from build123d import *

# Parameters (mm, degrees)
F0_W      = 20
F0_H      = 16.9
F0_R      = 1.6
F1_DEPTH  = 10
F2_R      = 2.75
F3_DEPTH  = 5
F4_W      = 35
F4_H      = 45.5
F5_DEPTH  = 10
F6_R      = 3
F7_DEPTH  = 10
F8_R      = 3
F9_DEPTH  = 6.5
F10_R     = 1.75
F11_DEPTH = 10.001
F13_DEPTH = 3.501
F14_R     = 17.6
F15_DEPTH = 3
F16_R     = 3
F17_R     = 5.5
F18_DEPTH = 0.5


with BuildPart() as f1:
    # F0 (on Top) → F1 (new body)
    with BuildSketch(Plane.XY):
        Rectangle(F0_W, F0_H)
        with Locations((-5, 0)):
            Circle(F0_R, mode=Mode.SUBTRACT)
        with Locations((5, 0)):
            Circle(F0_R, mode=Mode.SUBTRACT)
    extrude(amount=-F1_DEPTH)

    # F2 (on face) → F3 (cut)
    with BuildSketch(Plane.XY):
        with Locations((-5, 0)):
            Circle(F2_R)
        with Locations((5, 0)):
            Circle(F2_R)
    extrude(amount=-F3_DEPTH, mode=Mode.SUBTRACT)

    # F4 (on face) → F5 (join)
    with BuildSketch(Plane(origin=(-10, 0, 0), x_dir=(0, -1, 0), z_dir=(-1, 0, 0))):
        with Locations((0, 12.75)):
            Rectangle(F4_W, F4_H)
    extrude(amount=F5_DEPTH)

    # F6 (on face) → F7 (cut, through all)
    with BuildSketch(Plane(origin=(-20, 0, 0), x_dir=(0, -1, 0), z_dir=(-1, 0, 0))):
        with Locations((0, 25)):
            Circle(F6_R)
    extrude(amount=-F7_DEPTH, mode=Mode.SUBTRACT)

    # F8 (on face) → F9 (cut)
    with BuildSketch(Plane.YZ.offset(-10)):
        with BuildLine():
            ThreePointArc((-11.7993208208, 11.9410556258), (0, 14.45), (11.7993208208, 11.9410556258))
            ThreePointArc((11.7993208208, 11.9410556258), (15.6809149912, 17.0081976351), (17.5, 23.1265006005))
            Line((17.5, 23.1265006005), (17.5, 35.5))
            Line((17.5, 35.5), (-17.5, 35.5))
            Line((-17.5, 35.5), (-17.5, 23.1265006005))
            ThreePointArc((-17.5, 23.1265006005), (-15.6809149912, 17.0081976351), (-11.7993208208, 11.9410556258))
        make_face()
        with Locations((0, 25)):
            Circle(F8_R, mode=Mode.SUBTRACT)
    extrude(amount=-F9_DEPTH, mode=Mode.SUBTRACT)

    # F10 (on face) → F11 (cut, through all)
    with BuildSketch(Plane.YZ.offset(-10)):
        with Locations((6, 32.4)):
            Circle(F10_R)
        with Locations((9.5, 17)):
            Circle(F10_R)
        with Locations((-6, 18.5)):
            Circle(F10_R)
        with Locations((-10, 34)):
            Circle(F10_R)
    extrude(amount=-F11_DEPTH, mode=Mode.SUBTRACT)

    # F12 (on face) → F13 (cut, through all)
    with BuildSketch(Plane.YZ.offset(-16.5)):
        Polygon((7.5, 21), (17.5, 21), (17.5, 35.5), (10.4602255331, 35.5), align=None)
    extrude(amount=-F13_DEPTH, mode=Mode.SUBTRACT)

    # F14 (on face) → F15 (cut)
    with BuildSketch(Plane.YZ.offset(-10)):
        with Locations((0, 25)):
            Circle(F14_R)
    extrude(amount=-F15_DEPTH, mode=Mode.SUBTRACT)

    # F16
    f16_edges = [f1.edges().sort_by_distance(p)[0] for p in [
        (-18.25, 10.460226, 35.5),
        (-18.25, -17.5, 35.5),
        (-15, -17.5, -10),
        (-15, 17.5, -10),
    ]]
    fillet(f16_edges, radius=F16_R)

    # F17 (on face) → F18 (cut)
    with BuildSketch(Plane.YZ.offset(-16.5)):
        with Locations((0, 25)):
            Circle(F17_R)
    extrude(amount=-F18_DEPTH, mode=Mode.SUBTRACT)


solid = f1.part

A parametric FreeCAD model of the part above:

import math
import FreeCAD as App
import Part
import Sketcher
from FreeCAD import Vector


def edges_at(feature, points):
    """Names of the edges that pass closest to the given points."""
    edges = feature.Shape.Edges
    near = lambda p: min(range(len(edges)), key=lambda i: edges[i].distToShape(Part.Vertex(*p))[0])
    return sorted({f"Edge{near(p) + 1}" for p in points})


def add_polygon(sketch, points):
    """Adds a closed chain of lines whose ends are joined by coincident constraints."""
    first, n = sketch.GeometryCount, len(points)
    for a, b in zip(points, points[1:] + points[:1]):
        sketch.addGeometry(Part.LineSegment(App.Vector(*a, 0), App.Vector(*b, 0)), False)
    for i in range(n):
        sketch.addConstraint(Sketcher.Constraint("Coincident", first + i, 2, first + (i + 1) % n, 1))

doc = App.newDocument("Part")
body = doc.addObject("PartDesign::Body", "Body")

# Sketch on XY plane
sketch1 = doc.addObject("Sketcher::SketchObject", "Sketch")
body.addObject(sketch1)
sketch1.AttachmentSupport = (doc.XY_Plane, [""])
sketch1.MapMode = "FlatFace"
add_polygon(sketch1, [(-10, 8.4), (-10, -8.4), (10, -8.4), (10, 8.4)])  # lines 0-3
sketch1.addGeometry(Part.Circle(Vector(-5, 0, 0), Vector(0, 0, 1), 1.6), False)  # 4
sketch1.addGeometry(Part.Circle(Vector(5, 0, 0), Vector(0, 0, 1), 1.6), False)  # 5
sketch1.addConstraint([
    Sketcher.Constraint("Vertical", 0),
    Sketcher.Constraint("Horizontal", 1),
    Sketcher.Constraint("Vertical", 2),
    Sketcher.Constraint("Horizontal", 3),
    Sketcher.Constraint("Equal", 4, 5),
    Sketcher.Constraint("Symmetric", 4, 3, 5, 3, -1, 1),
    Sketcher.Constraint("Symmetric", 0, 2, 2, 2, -1, 1),
    Sketcher.Constraint("PointOnObject", 4, 3, -1),
    Sketcher.Constraint("Diameter", 4, 3.2),
    Sketcher.Constraint("DistanceX", 1, 1, 1, 2, 20.0),
    Sketcher.Constraint("DistanceY", 0, 2, 0, 1, 16.9),
    Sketcher.Constraint("DistanceX", 4, 3, -1, 1, 5.0),
])
pad1 = doc.addObject("PartDesign::Pad", "Pad")
body.addObject(pad1)
pad1.Profile = sketch1
pad1.Length = 10
pad1.Reversed = True

# Sketch on XY plane
sketch2 = doc.addObject("Sketcher::SketchObject", "Sketch001")
body.addObject(sketch2)
sketch2.AttachmentSupport = (doc.XY_Plane, [""])
sketch2.MapMode = "FlatFace"
sketch2.addGeometry([
    Part.Circle(Vector(-5, 0, 0), Vector(0, 0, 1), 2.8),
    Part.Circle(Vector(5, 0, 0), Vector(0, 0, 1), 2.8),
], False)
sketch2.addConstraint([
    Sketcher.Constraint("Equal", 0, 1),
    Sketcher.Constraint("Symmetric", 0, 3, 1, 3, -1, 1),
    Sketcher.Constraint("PointOnObject", 0, 3, -1),
    Sketcher.Constraint("Diameter", 0, 5.5),
    Sketcher.Constraint("DistanceX", 0, 3, -1, 1, 5.0),
])
pocket1 = doc.addObject("PartDesign::Pocket", "Pocket")
body.addObject(pocket1)
pocket1.Profile = sketch2
pocket1.Length = 5

# Sketch on YZ plane
sketch3 = doc.addObject("Sketcher::SketchObject", "Sketch002")
body.addObject(sketch3)
sketch3.AttachmentSupport = (doc.YZ_Plane, [""])
sketch3.MapMode = "FlatFace"
sketch3.AttachmentOffset = App.Placement(Vector(0, 0, -10), App.Rotation())
add_polygon(sketch3, [(18, 36), (18, -10), (-18, -10), (-18, 36)])  # lines 0-3
sketch3.addConstraint([
    Sketcher.Constraint("Vertical", 0),
    Sketcher.Constraint("Horizontal", 1),
    Sketcher.Constraint("Vertical", 2),
    Sketcher.Constraint("Horizontal", 3),
    Sketcher.Constraint("DistanceX", 1, 2, 1, 1, 35.0),
    Sketcher.Constraint("DistanceY", 0, 2, 0, 1, 45.5),
    Sketcher.Constraint("DistanceY", 0, 2, -1, 1, 10.0),
    Sketcher.Constraint("DistanceX", -1, 1, 0, 2, 17.5),
])
pad2 = doc.addObject("PartDesign::Pad", "Pad001")
body.addObject(pad2)
pad2.Profile = sketch3
pad2.Length = 10
pad2.Reversed = True

# Sketch on YZ plane
sketch4 = doc.addObject("Sketcher::SketchObject", "Sketch003")
body.addObject(sketch4)
sketch4.AttachmentSupport = (doc.YZ_Plane, [""])
sketch4.MapMode = "FlatFace"
sketch4.AttachmentOffset = App.Placement(Vector(0, 0, -20), App.Rotation())
sketch4.addGeometry(Part.Circle(Vector(0, 25, 0), Vector(0, 0, 1), 3), False)
sketch4.addConstraint([
    Sketcher.Constraint("PointOnObject", 0, 3, -2),
    Sketcher.Constraint("Diameter", 0, 6.0),
    Sketcher.Constraint("DistanceY", -1, 1, 0, 3, 25.0),
])
pocket2 = doc.addObject("PartDesign::Pocket", "Pocket001")
body.addObject(pocket2)
pocket2.Profile = sketch4
pocket2.Type = "ThroughAll"
pocket2.Reversed = True

# Sketch on YZ plane
sketch5 = doc.addObject("Sketcher::SketchObject", "Sketch004")
body.addObject(sketch5)
sketch5.AttachmentSupport = (doc.YZ_Plane, [""])
sketch5.MapMode = "FlatFace"
sketch5.AttachmentOffset = App.Placement(Vector(0, 0, -10), App.Rotation())
sketch5.addGeometry([
    Part.ArcOfCircle(Part.Circle(Vector(0, -14.6, 0), Vector(0, 0, 1), 29), math.radians(66), math.radians(114)),  # 0
    Part.ArcOfCircle(Part.Circle(Vector(0, 25, 0), Vector(0, 0, 1), 17.6), math.radians(-48), math.radians(-6)),  # 1
    Part.LineSegment(Vector(17.5, 23.1, 0), Vector(17.5, 35.5, 0)),  # 2
    Part.LineSegment(Vector(17.5, 35.5, 0), Vector(-17.5, 35.5, 0)),  # 3
    Part.LineSegment(Vector(-17.5, 35.5, 0), Vector(-17.5, 23.1, 0)),  # 4
    Part.ArcOfCircle(Part.Circle(Vector(0, 25, 0), Vector(0, 0, 1), 17.6), math.radians(-174), math.radians(-132)),  # 5
    Part.Circle(Vector(0, 25, 0), Vector(0, 0, 1), 3),  # 6
], False)
sketch5.addConstraint([
    Sketcher.Constraint("Coincident", 0, 1, 1, 1),
    Sketcher.Constraint("Coincident", 1, 2, 2, 1),
    Sketcher.Constraint("Coincident", 2, 2, 3, 1),
    Sketcher.Constraint("Coincident", 3, 2, 4, 1),
    Sketcher.Constraint("Coincident", 4, 2, 5, 1),
    Sketcher.Constraint("Coincident", 5, 2, 0, 2),
    Sketcher.Constraint("Vertical", 2),
    Sketcher.Constraint("Horizontal", 3),
    Sketcher.Constraint("Vertical", 4),
    Sketcher.Constraint("Coincident", 5, 3, 1, 3),
    Sketcher.Constraint("Coincident", 6, 3, 1, 3),
    Sketcher.Constraint("Equal", 1, 5),
    Sketcher.Constraint("Symmetric", 1, 2, 4, 2, -2),
    Sketcher.Constraint("PointOnObject", 0, 3, -2),
    Sketcher.Constraint("Diameter", 6, 6.0),
    Sketcher.Constraint("Radius", 0, 29.0),
    Sketcher.Constraint("Radius", 1, 17.6),
    Sketcher.Constraint("DistanceX", 3, 2, 3, 1, 35.0),
    Sketcher.Constraint("DistanceY", -1, 1, 1, 3, 25.0),
    Sketcher.Constraint("DistanceY", -1, 1, 2, 2, 35.5),
    Sketcher.Constraint("DistanceY", 0, 3, -1, 1, 14.55),
])
pocket3 = doc.addObject("PartDesign::Pocket", "Pocket002")
body.addObject(pocket3)
pocket3.Profile = sketch5
pocket3.Length = 6.5

# Sketch on YZ plane
sketch6 = doc.addObject("Sketcher::SketchObject", "Sketch005")
body.addObject(sketch6)
sketch6.AttachmentSupport = (doc.YZ_Plane, [""])
sketch6.MapMode = "FlatFace"
sketch6.AttachmentOffset = App.Placement(Vector(0, 0, -10), App.Rotation())
sketch6.addGeometry([
    Part.Circle(Vector(6, 32.4, 0), Vector(0, 0, 1), 1.8),
    Part.Circle(Vector(9.5, 17, 0), Vector(0, 0, 1), 1.8),
    Part.Circle(Vector(-6, 18.5, 0), Vector(0, 0, 1), 1.8),
    Part.Circle(Vector(-10, 34, 0), Vector(0, 0, 1), 1.8),
], False)
sketch6.addConstraint([
    Sketcher.Constraint("Equal", 0, 1),
    Sketcher.Constraint("Equal", 1, 2),
    Sketcher.Constraint("Equal", 2, 3),
    Sketcher.Constraint("Diameter", 0, 3.5),
    Sketcher.Constraint("DistanceX", -1, 1, 0, 3, 6.0),
    Sketcher.Constraint("DistanceY", -1, 1, 1, 3, 17.0),
    Sketcher.Constraint("DistanceX", 2, 3, -1, 1, 6.0),
    Sketcher.Constraint("DistanceX", 3, 3, -1, 1, 10.0),
    Sketcher.Constraint("DistanceY", -1, 1, 3, 3, 34.0),
    Sketcher.Constraint("DistanceY", -1, 1, 0, 3, 32.4),
    Sketcher.Constraint("DistanceX", -1, 1, 1, 3, 9.5),
    Sketcher.Constraint("DistanceY", -1, 1, 2, 3, 18.5),
])
pocket4 = doc.addObject("PartDesign::Pocket", "Pocket003")
body.addObject(pocket4)
pocket4.Profile = sketch6
pocket4.Type = "ThroughAll"

# Sketch on YZ plane
sketch7 = doc.addObject("Sketcher::SketchObject", "Sketch006")
body.addObject(sketch7)
sketch7.AttachmentSupport = (doc.YZ_Plane, [""])
sketch7.MapMode = "FlatFace"
sketch7.AttachmentOffset = App.Placement(Vector(0, 0, -16.5), App.Rotation())
add_polygon(sketch7, [(8, 21), (18, 21), (18, 36), (10, 36)])  # lines 0-3
sketch7.addConstraint([
    Sketcher.Constraint("Horizontal", 0),
    Sketcher.Constraint("Vertical", 1),
    Sketcher.Constraint("Horizontal", 2),
    Sketcher.Constraint("DistanceX", 0, 1, 0, 2, 10.0),
    Sketcher.Constraint("DistanceY", 1, 1, 1, 2, 14.5),
    Sketcher.Constraint("DistanceY", -1, 1, 0, 2, 21.0),
    Sketcher.Constraint("DistanceX", -1, 1, 0, 2, 17.5),
    Sketcher.Constraint("DistanceX", 2, 2, 2, 1, 7.039774),
])
pocket5 = doc.addObject("PartDesign::Pocket", "Pocket004")
body.addObject(pocket5)
pocket5.Profile = sketch7
pocket5.Type = "ThroughAll"

# Sketch on YZ plane
sketch8 = doc.addObject("Sketcher::SketchObject", "Sketch007")
body.addObject(sketch8)
sketch8.AttachmentSupport = (doc.YZ_Plane, [""])
sketch8.MapMode = "FlatFace"
sketch8.AttachmentOffset = App.Placement(Vector(0, 0, -10), App.Rotation())
sketch8.addGeometry(Part.Circle(Vector(0, 25, 0), Vector(0, 0, 1), 18), False)
sketch8.addConstraint([
    Sketcher.Constraint("PointOnObject", 0, 3, -2),
    Sketcher.Constraint("Diameter", 0, 35.2),
    Sketcher.Constraint("DistanceY", -1, 1, 0, 3, 25.0),
])
pocket6 = doc.addObject("PartDesign::Pocket", "Pocket005")
body.addObject(pocket6)
pocket6.Profile = sketch8
pocket6.Length = 3
doc.recompute()

fillet = doc.addObject("PartDesign::Fillet", "Fillet")
body.addObject(fillet)
fillet.Base = (pocket6, edges_at(pocket6, [
    (-18.25, 10.46, 35.5),
    (-18.25, -17.5, 35.5),
    (-15, -17.5, -10),
    (-15, 17.5, -10),
]))
fillet.Radius = 3

# Sketch on YZ plane
sketch9 = doc.addObject("Sketcher::SketchObject", "Sketch008")
body.addObject(sketch9)
sketch9.AttachmentSupport = (doc.YZ_Plane, [""])
sketch9.MapMode = "FlatFace"
sketch9.AttachmentOffset = App.Placement(Vector(0, 0, -16.5), App.Rotation())
sketch9.addGeometry(Part.Circle(Vector(0, 25, 0), Vector(0, 0, 1), 6), False)
sketch9.addConstraint([
    Sketcher.Constraint("PointOnObject", 0, 3, -2),
    Sketcher.Constraint("Diameter", 0, 11.0),
    Sketcher.Constraint("DistanceY", -1, 1, 0, 3, 25.0),
])
pocket7 = doc.addObject("PartDesign::Pocket", "Pocket006")
body.addObject(pocket7)
pocket7.Profile = sketch9
pocket7.Length = 0.5

doc.recompute()
